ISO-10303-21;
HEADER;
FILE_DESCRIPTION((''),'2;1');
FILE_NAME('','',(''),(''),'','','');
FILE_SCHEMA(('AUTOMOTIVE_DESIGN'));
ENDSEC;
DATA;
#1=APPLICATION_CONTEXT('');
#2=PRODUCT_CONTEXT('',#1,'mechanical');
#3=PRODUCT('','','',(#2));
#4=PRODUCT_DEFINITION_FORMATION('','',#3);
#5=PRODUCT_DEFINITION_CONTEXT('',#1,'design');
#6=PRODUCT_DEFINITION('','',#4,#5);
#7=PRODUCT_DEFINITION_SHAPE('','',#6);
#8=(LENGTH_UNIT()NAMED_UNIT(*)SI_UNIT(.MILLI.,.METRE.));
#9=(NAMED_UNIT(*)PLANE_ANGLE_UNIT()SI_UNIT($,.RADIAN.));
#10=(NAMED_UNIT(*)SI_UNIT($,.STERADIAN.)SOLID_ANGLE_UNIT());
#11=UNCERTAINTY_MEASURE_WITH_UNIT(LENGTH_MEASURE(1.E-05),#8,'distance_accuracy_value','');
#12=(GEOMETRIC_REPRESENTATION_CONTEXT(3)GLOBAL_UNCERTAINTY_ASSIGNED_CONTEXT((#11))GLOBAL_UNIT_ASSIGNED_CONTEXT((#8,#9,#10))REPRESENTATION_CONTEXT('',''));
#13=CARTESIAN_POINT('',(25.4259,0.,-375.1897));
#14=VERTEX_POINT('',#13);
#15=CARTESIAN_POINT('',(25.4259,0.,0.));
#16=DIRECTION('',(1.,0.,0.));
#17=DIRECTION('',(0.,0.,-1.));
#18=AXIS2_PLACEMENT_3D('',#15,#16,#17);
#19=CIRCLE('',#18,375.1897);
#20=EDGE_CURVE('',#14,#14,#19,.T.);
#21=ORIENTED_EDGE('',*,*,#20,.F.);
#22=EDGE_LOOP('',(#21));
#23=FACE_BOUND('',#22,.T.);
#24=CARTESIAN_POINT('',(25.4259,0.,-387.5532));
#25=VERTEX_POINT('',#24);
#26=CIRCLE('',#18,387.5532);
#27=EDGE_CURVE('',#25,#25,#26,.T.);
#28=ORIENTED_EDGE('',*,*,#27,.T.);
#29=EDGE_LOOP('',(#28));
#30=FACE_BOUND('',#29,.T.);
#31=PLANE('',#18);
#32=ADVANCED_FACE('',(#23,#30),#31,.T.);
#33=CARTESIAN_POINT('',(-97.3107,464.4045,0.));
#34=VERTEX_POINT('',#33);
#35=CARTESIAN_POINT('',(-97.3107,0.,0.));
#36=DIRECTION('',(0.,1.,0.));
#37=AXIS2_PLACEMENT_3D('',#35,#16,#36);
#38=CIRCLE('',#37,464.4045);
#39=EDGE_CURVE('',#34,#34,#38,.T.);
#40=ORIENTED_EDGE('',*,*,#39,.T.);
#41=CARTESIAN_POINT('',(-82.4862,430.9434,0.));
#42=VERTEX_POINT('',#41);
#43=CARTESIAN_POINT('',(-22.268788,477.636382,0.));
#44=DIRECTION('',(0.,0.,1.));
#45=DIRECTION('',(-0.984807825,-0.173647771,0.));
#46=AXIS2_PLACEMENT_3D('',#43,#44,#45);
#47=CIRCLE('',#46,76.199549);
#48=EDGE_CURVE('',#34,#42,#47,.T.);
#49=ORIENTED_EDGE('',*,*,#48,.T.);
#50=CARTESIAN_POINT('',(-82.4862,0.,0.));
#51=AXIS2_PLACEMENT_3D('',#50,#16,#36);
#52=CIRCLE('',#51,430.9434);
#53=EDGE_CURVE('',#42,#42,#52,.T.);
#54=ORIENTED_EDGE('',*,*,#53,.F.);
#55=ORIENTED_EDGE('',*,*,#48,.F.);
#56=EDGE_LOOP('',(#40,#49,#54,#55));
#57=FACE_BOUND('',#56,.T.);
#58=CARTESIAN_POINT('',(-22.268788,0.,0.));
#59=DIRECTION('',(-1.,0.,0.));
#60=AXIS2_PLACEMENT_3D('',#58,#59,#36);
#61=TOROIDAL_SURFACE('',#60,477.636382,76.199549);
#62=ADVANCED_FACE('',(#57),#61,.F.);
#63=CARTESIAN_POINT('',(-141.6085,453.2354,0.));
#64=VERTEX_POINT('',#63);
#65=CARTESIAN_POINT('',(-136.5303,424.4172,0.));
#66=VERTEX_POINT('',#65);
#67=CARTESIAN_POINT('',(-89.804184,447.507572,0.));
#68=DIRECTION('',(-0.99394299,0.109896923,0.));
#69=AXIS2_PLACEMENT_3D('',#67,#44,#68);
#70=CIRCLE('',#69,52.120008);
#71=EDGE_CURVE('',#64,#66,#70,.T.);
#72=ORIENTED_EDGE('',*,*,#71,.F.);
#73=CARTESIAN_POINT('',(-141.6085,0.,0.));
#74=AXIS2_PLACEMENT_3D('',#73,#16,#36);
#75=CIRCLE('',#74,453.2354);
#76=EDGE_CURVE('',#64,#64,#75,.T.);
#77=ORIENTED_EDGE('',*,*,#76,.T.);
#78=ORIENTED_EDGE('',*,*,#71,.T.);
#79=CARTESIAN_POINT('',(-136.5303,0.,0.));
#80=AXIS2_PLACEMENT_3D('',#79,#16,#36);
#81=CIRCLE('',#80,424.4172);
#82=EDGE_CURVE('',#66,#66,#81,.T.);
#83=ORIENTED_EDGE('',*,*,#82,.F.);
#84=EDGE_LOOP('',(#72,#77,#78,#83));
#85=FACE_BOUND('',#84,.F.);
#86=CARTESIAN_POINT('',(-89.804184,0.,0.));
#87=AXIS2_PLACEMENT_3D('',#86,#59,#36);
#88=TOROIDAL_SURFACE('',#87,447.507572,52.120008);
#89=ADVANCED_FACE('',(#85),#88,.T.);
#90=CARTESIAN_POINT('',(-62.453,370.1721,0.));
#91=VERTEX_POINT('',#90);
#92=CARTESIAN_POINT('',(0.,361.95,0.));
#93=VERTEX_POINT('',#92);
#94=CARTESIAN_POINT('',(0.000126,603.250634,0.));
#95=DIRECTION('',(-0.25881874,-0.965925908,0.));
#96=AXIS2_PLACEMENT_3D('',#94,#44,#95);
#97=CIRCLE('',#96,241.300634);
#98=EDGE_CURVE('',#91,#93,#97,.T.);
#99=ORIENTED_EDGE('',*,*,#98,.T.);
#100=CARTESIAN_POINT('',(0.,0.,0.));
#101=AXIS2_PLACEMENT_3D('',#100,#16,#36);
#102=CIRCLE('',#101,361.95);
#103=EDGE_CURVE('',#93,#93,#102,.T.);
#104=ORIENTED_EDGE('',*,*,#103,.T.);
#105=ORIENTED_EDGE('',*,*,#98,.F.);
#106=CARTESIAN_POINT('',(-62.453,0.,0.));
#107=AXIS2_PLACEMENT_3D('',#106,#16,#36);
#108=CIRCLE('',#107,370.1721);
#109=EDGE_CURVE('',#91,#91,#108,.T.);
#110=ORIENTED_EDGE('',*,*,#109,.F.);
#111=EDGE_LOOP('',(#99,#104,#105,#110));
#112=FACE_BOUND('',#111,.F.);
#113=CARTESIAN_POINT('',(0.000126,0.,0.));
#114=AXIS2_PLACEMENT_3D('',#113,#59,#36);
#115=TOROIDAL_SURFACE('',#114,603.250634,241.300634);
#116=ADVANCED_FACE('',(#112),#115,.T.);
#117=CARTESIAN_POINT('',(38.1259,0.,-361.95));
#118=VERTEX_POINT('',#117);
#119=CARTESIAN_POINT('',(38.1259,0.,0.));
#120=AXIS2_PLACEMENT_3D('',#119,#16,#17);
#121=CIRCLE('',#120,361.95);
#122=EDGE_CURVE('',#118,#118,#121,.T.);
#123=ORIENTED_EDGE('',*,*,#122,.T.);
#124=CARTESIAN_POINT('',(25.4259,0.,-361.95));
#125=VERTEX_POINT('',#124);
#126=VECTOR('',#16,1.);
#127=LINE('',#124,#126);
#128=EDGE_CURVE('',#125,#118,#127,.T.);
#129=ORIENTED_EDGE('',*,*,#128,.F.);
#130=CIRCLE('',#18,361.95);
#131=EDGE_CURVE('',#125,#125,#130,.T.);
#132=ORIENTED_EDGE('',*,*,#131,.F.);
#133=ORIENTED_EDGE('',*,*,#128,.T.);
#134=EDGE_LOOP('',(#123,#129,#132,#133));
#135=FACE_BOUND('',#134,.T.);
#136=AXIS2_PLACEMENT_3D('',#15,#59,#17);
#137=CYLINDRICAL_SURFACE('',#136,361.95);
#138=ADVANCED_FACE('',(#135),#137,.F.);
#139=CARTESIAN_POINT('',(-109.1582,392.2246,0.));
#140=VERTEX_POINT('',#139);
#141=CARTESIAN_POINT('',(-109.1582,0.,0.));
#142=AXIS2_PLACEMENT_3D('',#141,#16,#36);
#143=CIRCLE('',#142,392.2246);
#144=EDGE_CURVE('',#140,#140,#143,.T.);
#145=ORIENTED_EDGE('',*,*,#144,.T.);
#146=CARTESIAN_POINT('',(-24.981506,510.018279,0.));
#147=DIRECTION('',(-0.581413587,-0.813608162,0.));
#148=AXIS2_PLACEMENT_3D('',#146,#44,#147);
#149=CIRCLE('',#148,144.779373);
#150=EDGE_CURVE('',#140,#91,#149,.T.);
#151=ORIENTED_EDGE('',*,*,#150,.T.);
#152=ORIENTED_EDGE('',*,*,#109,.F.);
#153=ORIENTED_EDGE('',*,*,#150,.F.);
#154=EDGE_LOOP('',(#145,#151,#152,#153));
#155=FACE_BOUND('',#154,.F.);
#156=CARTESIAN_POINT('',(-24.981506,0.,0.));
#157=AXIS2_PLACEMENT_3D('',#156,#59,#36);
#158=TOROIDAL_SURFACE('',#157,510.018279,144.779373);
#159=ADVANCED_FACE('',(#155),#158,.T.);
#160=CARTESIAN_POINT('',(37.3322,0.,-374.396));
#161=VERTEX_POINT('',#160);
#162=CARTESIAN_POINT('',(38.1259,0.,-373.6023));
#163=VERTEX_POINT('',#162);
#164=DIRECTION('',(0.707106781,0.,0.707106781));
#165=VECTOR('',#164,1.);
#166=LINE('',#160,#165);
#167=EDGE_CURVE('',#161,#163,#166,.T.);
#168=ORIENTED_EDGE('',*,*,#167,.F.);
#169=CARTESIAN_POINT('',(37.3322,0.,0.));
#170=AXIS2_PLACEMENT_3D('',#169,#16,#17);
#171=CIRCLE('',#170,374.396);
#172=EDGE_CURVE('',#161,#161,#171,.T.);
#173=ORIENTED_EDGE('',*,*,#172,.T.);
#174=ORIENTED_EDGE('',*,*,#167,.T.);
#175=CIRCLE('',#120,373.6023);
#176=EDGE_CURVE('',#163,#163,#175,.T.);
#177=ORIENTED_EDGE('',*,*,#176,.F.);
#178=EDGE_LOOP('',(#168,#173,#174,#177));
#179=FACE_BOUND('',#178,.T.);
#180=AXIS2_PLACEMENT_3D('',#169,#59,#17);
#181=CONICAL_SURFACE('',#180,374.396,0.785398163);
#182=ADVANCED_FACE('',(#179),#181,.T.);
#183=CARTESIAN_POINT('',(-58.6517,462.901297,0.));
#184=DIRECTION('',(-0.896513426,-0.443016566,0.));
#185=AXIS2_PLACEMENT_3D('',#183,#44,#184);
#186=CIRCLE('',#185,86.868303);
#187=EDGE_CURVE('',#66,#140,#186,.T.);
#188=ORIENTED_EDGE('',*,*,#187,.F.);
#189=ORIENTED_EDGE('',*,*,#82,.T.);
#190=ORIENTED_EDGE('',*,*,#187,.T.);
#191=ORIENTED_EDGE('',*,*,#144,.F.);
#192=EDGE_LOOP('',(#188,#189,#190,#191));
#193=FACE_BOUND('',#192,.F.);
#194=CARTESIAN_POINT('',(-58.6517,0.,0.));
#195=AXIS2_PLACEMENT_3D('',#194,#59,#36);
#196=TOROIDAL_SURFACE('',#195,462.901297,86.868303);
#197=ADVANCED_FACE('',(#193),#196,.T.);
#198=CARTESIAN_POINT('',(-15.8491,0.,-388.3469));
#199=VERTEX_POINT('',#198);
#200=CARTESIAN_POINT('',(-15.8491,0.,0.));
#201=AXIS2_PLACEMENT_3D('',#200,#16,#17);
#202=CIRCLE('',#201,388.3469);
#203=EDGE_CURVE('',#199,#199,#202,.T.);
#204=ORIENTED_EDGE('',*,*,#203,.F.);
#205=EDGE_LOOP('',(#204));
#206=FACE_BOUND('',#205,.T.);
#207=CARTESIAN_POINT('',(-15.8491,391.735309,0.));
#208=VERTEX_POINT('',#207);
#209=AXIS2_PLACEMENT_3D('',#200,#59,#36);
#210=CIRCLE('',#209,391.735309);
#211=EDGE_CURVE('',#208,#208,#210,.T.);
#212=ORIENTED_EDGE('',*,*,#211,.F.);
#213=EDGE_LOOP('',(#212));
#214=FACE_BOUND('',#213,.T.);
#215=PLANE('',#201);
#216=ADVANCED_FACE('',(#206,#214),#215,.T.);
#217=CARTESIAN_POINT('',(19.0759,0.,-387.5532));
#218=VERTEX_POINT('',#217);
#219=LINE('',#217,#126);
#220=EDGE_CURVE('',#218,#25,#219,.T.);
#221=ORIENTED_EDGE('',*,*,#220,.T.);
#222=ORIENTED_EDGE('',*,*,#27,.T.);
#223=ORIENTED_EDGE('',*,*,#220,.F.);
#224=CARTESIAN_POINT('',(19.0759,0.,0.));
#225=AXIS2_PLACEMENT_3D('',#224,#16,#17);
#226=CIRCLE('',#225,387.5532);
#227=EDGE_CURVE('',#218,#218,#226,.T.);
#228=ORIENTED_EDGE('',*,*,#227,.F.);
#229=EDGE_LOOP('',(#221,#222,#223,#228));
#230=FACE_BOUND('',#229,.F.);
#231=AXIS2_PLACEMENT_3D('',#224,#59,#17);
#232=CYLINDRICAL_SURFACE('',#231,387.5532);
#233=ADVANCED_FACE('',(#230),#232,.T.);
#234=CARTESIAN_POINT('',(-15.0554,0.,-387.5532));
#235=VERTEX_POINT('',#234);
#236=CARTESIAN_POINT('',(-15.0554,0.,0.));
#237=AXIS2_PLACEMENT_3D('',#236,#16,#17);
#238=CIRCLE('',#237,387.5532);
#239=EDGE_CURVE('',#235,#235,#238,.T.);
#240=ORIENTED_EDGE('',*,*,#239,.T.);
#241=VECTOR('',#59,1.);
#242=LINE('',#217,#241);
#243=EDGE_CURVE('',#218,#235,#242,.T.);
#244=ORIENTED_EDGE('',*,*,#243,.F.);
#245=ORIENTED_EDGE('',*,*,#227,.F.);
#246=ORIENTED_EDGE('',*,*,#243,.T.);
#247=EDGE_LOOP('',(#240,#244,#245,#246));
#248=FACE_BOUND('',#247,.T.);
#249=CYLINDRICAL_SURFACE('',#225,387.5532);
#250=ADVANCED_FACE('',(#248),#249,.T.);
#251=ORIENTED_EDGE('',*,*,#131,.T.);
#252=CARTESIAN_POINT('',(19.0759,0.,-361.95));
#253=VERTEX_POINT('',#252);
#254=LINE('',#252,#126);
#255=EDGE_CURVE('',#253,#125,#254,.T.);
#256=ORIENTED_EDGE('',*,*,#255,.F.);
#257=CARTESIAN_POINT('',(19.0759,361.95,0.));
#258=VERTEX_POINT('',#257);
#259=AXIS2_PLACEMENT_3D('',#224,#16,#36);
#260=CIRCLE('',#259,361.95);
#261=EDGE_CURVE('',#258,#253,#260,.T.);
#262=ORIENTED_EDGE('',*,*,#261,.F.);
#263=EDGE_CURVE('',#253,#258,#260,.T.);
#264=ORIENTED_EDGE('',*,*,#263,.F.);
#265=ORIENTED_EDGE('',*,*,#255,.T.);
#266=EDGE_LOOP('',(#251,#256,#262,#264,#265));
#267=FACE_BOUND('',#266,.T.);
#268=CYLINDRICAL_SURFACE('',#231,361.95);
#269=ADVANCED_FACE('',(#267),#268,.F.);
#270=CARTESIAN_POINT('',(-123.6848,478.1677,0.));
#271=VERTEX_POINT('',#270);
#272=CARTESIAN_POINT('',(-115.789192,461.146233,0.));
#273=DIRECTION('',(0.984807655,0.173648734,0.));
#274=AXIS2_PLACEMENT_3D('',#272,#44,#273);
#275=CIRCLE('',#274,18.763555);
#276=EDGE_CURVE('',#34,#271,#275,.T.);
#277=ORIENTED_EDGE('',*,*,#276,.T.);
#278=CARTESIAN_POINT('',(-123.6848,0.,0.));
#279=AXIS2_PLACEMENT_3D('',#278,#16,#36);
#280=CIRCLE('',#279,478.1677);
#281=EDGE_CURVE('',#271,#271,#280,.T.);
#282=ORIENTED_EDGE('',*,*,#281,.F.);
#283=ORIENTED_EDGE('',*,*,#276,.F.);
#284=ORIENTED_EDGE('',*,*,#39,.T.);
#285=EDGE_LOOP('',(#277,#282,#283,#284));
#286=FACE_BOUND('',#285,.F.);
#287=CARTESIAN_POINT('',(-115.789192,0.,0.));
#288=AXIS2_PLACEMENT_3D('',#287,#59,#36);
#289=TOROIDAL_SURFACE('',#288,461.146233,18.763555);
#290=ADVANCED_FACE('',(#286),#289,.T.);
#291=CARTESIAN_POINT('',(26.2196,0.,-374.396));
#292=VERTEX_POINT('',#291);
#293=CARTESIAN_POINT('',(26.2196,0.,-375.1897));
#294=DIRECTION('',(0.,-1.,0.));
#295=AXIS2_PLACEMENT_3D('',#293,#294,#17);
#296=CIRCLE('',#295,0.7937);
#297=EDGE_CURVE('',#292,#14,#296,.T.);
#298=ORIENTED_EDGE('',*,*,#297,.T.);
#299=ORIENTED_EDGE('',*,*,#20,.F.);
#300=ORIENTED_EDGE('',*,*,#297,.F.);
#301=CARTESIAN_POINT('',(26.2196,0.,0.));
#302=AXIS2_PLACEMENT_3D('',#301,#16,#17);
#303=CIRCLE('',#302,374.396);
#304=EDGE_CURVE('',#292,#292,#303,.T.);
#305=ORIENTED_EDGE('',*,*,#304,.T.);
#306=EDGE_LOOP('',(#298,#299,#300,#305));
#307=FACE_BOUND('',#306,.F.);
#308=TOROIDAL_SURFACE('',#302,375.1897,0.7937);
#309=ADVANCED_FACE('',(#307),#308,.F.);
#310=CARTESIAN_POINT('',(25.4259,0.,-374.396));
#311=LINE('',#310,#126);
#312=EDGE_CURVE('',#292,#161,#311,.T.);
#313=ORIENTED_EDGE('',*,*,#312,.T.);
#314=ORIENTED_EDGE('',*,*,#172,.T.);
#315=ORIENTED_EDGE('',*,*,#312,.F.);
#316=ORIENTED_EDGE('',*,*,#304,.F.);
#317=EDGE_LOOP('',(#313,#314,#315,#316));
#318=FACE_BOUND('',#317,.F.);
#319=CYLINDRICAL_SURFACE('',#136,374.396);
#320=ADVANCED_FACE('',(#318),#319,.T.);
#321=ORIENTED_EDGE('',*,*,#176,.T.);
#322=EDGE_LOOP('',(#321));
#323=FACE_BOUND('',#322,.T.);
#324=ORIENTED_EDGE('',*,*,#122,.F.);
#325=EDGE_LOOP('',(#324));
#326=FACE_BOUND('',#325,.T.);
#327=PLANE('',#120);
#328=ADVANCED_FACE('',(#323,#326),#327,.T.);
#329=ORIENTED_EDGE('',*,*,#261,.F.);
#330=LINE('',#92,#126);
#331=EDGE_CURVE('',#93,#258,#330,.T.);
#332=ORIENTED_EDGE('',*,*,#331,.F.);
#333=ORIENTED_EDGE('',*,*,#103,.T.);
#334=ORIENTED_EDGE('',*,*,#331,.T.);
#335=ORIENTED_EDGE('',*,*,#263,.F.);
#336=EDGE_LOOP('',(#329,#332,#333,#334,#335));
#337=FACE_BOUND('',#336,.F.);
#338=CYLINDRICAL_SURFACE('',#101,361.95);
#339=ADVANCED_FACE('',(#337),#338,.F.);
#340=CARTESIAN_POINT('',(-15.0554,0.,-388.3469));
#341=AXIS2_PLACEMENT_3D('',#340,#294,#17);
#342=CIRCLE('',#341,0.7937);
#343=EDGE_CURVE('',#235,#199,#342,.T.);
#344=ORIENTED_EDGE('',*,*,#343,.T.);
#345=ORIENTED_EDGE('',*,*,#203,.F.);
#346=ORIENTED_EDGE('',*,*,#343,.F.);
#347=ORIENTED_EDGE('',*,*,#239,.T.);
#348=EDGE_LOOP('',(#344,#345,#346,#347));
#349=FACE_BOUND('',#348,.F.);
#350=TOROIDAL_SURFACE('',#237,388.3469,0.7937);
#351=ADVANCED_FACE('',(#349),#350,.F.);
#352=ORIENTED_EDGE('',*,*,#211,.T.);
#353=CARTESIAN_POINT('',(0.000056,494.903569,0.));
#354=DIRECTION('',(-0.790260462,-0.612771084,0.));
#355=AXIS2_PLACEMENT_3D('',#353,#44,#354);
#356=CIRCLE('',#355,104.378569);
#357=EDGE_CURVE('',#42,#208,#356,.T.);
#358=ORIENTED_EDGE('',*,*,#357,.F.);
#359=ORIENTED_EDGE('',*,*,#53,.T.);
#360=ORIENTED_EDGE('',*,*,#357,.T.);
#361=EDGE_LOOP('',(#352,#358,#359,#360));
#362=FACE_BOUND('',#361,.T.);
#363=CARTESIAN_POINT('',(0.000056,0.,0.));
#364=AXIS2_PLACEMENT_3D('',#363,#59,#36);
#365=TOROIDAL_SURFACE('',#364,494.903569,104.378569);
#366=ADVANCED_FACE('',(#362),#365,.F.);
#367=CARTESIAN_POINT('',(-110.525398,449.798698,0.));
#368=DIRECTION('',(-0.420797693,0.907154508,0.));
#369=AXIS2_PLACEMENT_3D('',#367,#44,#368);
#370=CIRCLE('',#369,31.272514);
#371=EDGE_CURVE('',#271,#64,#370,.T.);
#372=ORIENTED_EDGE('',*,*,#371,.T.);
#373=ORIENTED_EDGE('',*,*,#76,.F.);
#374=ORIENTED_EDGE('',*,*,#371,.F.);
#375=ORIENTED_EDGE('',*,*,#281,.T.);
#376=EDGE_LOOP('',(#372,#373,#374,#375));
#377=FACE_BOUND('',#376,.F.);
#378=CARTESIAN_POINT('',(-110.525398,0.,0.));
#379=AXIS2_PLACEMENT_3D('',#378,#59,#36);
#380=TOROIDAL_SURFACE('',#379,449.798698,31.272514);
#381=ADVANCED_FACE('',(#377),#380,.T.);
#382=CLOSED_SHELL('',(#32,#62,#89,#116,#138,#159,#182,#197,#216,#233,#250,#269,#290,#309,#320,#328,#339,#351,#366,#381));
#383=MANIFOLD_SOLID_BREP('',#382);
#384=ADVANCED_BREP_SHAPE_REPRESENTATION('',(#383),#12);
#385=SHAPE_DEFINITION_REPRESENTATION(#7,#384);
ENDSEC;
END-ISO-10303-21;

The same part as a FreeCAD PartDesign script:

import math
import FreeCAD as App
import Part
import Sketcher
Q = App.Units.Quantity


def edges_at(feature, points):
    """Names of the edges that pass closest to the given points."""
    edges = feature.Shape.Edges
    near = lambda p: min(range(len(edges)), key=lambda i: edges[i].distToShape(Part.Vertex(*p))[0])
    return sorted({f"Edge{near(p) + 1}" for p in points})

doc = App.newDocument("Part")
body = doc.addObject("PartDesign::Body", "Body")

# Sketch on XY plane
sketch1 = body.newObject("Sketcher::SketchObject", "Sketch")
sketch1.AttachmentSupport = (doc.getObject("XY_Plane"), [""])
sketch1.MapMode = "FlatFace"
sketch1.addGeometry([
    Part.LineSegment(App.Vector(19, 362, 0), App.Vector(19, 391, 0)),  # 0
    Part.LineSegment(App.Vector(19, 391, 0), App.Vector(0, 391, 0)),  # 1
    Part.ArcOfCircle(Part.Circle(App.Vector(0, 495, 0), App.Vector(0, 0, 1), 104), math.radians(-142), math.radians(-90)),  # 2
    Part.ArcOfCircle(Part.Circle(App.Vector(-22, 478, 0), App.Vector(0, 0, 1), 76), math.radians(-170), math.radians(-142)),  # 3
    Part.ArcOfCircle(Part.Circle(App.Vector(-116, 461, 0), App.Vector(0, 0, 1), 19), math.radians(10), math.radians(115)),  # 4
    Part.ArcOfCircle(Part.Circle(App.Vector(-111, 450, 0), App.Vector(0, 0, 1), 31), math.radians(115), math.radians(174)),  # 5
    Part.ArcOfCircle(Part.Circle(App.Vector(-90, 448, 0), App.Vector(0, 0, 1), 52), math.radians(174), math.radians(206)),  # 6
    Part.ArcOfCircle(Part.Circle(App.Vector(-59, 463, 0), App.Vector(0, 0, 1), 87), math.radians(-154), math.radians(-126)),  # 7
    Part.ArcOfCircle(Part.Circle(App.Vector(-25, 510, 0), App.Vector(0, 0, 1), 145), math.radians(-126), math.radians(-105)),  # 8
    Part.ArcOfCircle(Part.Circle(App.Vector(0, 603, 0), App.Vector(0, 0, 1), 241), math.radians(-105), math.radians(-90)),  # 9
    Part.LineSegment(App.Vector(0, 362, 0), App.Vector(19, 362, 0)),  # 10
], False)
sketch1.addConstraint([
    Sketcher.Constraint("Coincident", 0, 2, 1, 1),
    Sketcher.Constraint("Tangent", 1, 2, 2, 2),
    Sketcher.Constraint("Tangent", 2, 1, 3, 2),
    Sketcher.Constraint("Tangent", 3, 1, 4, 1),
    Sketcher.Constraint("Tangent", 4, 2, 5, 1),
    Sketcher.Constraint("Tangent", 5, 2, 6, 1),
    Sketcher.Constraint("Tangent", 6, 2, 7, 1),
    Sketcher.Constraint("Tangent", 7, 2, 8, 1),
    Sketcher.Constraint("Tangent", 8, 2, 9, 1),
    Sketcher.Constraint("Tangent", 9, 2, 10, 1),
    Sketcher.Constraint("Coincident", 10, 2, 0, 1),
    Sketcher.Constraint("Vertical", 0),
    Sketcher.Constraint("Horizontal", 1),
    Sketcher.Constraint("Horizontal", 10),
    Sketcher.Constraint("PointOnObject", 2, 3, -2),
    Sketcher.Constraint("PointOnObject", 9, 3, -2),
    Sketcher.Constraint("Radius", 3, Q("3 in")),
    Sketcher.Constraint("Radius", 8, Q("5.7 in")),
    Sketcher.Constraint("Radius", 9, Q("9.5 in")),
    Sketcher.Constraint("Radius", 7, Q("3.42 in")),
    Sketcher.Constraint("Radius", 6, Q("2.052 in")),
    Sketcher.Constraint("Radius", 5, Q("1.2312 in")),
    Sketcher.Constraint("Radius", 4, 18.7635),
    Sketcher.Constraint("DistanceX", 1, 2, 1, 1, 19.076),
    Sketcher.Constraint("Radius", 2, Q("4.1094 in")),
    Sketcher.Constraint("DistanceY", 0, 1, 0, 2, Q("1.125 in")),
    Sketcher.Constraint("DistanceY", -1, 1, 9, 3, Q("23.75 in")),
    Sketcher.Constraint("DistanceX", 3, 1, 7, 3, Q("1.522 in")),
    Sketcher.Constraint("DistanceX", 4, 2, 2, 1, Q("1.622 in")),
    Sketcher.Constraint("DistanceX", 5, 2, 3, 1, Q("1.744 in")),
    Sketcher.Constraint("DistanceX", 7, 2, 6, 3, Q("0.762 in")),
    Sketcher.Constraint("DistanceY", 7, 2, 5, 2, Q("2.402 in")),
])
revolution = body.newObject("PartDesign::Revolution", "Revolution")
revolution.Profile = sketch1
revolution.ReferenceAxis = (sketch1, ["H_Axis"])
revolution.Angle = 360

# Sketch on YZ plane
sketch2 = body.newObject("Sketcher::SketchObject", "Sketch001")
sketch2.AttachmentSupport = (doc.getObject("YZ_Plane"), [""])
sketch2.MapMode = "FlatFace"
sketch2.AttachmentOffset = App.Placement(App.Vector(0, 0, 19.0759), App.Rotation())
sketch2.addGeometry([
    Part.Circle(App.Vector(0, 0, 0), App.Vector(0, 0, 1), 431),
    Part.Circle(App.Vector(0, 0, 0), App.Vector(0, 0, 1), 388),
], False)
sketch2.addConstraint([
    Sketcher.Constraint("Coincident", 0, 3, -1, 1),
    Sketcher.Constraint("Coincident", 1, 3, -1, 1),
    Sketcher.Constraint("Diameter", 1, Q("30.516 in")),
    Sketcher.Constraint("Diameter", 0, 861.8868),
])
pocket1 = body.newObject("PartDesign::Pocket", "Pocket")
pocket1.Profile = sketch2
pocket1.Length = Q("1.375 in")
doc.recompute()

fillet = body.newObject("PartDesign::Fillet", "Fillet")
fillet.Base = (pocket1, edges_at(pocket1, [(-15.849, 0, 387.553)]))
fillet.Radius = Q("0.031248 in")

# Sketch on YZ plane
sketch3 = body.newObject("Sketcher::SketchObject", "Sketch002")
sketch3.AttachmentSupport = (doc.getObject("YZ_Plane"), [""])
sketch3.MapMode = "FlatFace"
sketch3.AttachmentOffset = App.Placement(App.Vector(0, 0, 19.0759), App.Rotation())
sketch3.addGeometry([
    Part.Circle(App.Vector(0, 0, 0), App.Vector(0, 0, 1), 388),
    Part.Circle(App.Vector(0, 0, 0), App.Vector(0, 0, 1), 362),
], False)
sketch3.addConstraint([
    Sketcher.Constraint("Coincident", 0, 3, -1, 1),
    Sketcher.Constraint("Coincident", 1, 3, -1, 1),
    Sketcher.Constraint("Diameter", 1, Q("28.5 in")),
    Sketcher.Constraint("Diameter", 0, Q("30.516 in")),
])
pad1 = body.newObject("PartDesign::Pad", "Pad")
pad1.Profile = sketch3
pad1.Length = Q("0.25 in")

# Sketch on YZ plane
sketch4 = body.newObject("Sketcher::SketchObject", "Sketch003")
sketch4.AttachmentSupport = (doc.getObject("YZ_Plane"), [""])
sketch4.MapMode = "FlatFace"
sketch4.AttachmentOffset = App.Placement(App.Vector(0, 0, 25.4259), App.Rotation())
sketch4.addGeometry([
    Part.Circle(App.Vector(0, 0, 0), App.Vector(0, 0, 1), 374),
    Part.Circle(App.Vector(0, 0, 0), App.Vector(0, 0, 1), 362),
], False)
sketch4.addConstraint([
    Sketcher.Constraint("Coincident", 0, 3, -1, 1),
    Sketcher.Constraint("Coincident", 1, 3, -1, 1),
    Sketcher.Constraint("Diameter", 1, Q("28.5 in")),
    Sketcher.Constraint("Diameter", 0, Q("29.48 in")),
])
pad2 = body.newObject("PartDesign::Pad", "Pad001")
pad2.Profile = sketch4
pad2.Length = Q("0.5 in")
doc.recompute()

fillet2 = body.newObject("PartDesign::Fillet", "Fillet001")
fillet2.Base = (pad2, edges_at(pad2, [(25.426, 0, 374.396)]))
fillet2.Radius = Q("0.031248 in")
doc.recompute()

chamfer = body.newObject("PartDesign::Chamfer", "Chamfer")
chamfer.Base = (fillet2, edges_at(fillet2, [(38.126, 0, 374.396)]))
chamfer.Size = Q("0.031248 in")

doc.recompute()
